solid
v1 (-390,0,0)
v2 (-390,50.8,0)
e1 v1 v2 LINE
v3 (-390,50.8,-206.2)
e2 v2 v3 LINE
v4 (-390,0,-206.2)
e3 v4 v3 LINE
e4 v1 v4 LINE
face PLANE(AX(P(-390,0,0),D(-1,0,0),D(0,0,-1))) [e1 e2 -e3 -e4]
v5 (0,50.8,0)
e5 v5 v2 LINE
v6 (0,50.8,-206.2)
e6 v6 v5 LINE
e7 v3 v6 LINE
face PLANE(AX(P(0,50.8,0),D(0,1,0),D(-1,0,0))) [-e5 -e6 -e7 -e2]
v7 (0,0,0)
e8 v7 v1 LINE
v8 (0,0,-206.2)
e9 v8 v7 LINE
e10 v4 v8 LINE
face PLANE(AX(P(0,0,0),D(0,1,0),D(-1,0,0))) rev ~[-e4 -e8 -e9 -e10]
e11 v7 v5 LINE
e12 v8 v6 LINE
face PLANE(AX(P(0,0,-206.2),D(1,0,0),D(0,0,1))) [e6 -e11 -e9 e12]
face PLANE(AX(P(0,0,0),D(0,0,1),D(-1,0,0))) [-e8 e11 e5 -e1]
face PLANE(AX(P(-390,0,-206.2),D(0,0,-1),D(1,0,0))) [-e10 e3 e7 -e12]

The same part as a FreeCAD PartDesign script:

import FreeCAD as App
import Part
import Sketcher

V = App.Vector
Q = App.Units.Quantity


def add_polygon(sketch, points):
    """Adds a closed chain of lines whose ends are joined by coincident constraints."""
    first, n = sketch.GeometryCount, len(points)
    for a, b in zip(points, points[1:] + points[:1]):
        sketch.addGeometry(Part.LineSegment(App.Vector(*a, 0), App.Vector(*b, 0)), False)
    for i in range(n):
        sketch.addConstraint(Sketcher.Constraint("Coincident", first + i, 2, first + (i + 1) % n, 1))

doc = App.newDocument("Part")
body = doc.addObject("PartDesign::Body", "Body")

# Sketch on XZ plane
sketch1 = body.newObject("Sketcher::SketchObject", "Sketch")
sketch1.AttachmentSupport = (doc.getObject("XZ_Plane"), [""])
sketch1.MapMode = "FlatFace"
add_polygon(sketch1, [(-390, 0), (0, 0), (0, -206.2), (-390, -206.2)])  # lines 0-3
sketch1.addConstraint(Sketcher.Constraint("Horizontal", 0))
sketch1.addConstraint(Sketcher.Constraint("Vertical", 1))
sketch1.addConstraint(Sketcher.Constraint("Horizontal", 2))
sketch1.addConstraint(Sketcher.Constraint("Vertical", 3))
sketch1.addConstraint(Sketcher.Constraint("Coincident", 0, 2, -1, 1))
sketch1.addConstraint(Sketcher.Constraint("DistanceX", 0, 1, 0, 2, Q("390 mm")))
sketch1.addConstraint(Sketcher.Constraint("DistanceY", 1, 2, 1, 1, Q("206.2 mm")))
pad1 = body.newObject("PartDesign::Pad", "Pad")
pad1.Profile = sketch1
pad1.Length = 50.8
pad1.Reversed = True

doc.recompute()
